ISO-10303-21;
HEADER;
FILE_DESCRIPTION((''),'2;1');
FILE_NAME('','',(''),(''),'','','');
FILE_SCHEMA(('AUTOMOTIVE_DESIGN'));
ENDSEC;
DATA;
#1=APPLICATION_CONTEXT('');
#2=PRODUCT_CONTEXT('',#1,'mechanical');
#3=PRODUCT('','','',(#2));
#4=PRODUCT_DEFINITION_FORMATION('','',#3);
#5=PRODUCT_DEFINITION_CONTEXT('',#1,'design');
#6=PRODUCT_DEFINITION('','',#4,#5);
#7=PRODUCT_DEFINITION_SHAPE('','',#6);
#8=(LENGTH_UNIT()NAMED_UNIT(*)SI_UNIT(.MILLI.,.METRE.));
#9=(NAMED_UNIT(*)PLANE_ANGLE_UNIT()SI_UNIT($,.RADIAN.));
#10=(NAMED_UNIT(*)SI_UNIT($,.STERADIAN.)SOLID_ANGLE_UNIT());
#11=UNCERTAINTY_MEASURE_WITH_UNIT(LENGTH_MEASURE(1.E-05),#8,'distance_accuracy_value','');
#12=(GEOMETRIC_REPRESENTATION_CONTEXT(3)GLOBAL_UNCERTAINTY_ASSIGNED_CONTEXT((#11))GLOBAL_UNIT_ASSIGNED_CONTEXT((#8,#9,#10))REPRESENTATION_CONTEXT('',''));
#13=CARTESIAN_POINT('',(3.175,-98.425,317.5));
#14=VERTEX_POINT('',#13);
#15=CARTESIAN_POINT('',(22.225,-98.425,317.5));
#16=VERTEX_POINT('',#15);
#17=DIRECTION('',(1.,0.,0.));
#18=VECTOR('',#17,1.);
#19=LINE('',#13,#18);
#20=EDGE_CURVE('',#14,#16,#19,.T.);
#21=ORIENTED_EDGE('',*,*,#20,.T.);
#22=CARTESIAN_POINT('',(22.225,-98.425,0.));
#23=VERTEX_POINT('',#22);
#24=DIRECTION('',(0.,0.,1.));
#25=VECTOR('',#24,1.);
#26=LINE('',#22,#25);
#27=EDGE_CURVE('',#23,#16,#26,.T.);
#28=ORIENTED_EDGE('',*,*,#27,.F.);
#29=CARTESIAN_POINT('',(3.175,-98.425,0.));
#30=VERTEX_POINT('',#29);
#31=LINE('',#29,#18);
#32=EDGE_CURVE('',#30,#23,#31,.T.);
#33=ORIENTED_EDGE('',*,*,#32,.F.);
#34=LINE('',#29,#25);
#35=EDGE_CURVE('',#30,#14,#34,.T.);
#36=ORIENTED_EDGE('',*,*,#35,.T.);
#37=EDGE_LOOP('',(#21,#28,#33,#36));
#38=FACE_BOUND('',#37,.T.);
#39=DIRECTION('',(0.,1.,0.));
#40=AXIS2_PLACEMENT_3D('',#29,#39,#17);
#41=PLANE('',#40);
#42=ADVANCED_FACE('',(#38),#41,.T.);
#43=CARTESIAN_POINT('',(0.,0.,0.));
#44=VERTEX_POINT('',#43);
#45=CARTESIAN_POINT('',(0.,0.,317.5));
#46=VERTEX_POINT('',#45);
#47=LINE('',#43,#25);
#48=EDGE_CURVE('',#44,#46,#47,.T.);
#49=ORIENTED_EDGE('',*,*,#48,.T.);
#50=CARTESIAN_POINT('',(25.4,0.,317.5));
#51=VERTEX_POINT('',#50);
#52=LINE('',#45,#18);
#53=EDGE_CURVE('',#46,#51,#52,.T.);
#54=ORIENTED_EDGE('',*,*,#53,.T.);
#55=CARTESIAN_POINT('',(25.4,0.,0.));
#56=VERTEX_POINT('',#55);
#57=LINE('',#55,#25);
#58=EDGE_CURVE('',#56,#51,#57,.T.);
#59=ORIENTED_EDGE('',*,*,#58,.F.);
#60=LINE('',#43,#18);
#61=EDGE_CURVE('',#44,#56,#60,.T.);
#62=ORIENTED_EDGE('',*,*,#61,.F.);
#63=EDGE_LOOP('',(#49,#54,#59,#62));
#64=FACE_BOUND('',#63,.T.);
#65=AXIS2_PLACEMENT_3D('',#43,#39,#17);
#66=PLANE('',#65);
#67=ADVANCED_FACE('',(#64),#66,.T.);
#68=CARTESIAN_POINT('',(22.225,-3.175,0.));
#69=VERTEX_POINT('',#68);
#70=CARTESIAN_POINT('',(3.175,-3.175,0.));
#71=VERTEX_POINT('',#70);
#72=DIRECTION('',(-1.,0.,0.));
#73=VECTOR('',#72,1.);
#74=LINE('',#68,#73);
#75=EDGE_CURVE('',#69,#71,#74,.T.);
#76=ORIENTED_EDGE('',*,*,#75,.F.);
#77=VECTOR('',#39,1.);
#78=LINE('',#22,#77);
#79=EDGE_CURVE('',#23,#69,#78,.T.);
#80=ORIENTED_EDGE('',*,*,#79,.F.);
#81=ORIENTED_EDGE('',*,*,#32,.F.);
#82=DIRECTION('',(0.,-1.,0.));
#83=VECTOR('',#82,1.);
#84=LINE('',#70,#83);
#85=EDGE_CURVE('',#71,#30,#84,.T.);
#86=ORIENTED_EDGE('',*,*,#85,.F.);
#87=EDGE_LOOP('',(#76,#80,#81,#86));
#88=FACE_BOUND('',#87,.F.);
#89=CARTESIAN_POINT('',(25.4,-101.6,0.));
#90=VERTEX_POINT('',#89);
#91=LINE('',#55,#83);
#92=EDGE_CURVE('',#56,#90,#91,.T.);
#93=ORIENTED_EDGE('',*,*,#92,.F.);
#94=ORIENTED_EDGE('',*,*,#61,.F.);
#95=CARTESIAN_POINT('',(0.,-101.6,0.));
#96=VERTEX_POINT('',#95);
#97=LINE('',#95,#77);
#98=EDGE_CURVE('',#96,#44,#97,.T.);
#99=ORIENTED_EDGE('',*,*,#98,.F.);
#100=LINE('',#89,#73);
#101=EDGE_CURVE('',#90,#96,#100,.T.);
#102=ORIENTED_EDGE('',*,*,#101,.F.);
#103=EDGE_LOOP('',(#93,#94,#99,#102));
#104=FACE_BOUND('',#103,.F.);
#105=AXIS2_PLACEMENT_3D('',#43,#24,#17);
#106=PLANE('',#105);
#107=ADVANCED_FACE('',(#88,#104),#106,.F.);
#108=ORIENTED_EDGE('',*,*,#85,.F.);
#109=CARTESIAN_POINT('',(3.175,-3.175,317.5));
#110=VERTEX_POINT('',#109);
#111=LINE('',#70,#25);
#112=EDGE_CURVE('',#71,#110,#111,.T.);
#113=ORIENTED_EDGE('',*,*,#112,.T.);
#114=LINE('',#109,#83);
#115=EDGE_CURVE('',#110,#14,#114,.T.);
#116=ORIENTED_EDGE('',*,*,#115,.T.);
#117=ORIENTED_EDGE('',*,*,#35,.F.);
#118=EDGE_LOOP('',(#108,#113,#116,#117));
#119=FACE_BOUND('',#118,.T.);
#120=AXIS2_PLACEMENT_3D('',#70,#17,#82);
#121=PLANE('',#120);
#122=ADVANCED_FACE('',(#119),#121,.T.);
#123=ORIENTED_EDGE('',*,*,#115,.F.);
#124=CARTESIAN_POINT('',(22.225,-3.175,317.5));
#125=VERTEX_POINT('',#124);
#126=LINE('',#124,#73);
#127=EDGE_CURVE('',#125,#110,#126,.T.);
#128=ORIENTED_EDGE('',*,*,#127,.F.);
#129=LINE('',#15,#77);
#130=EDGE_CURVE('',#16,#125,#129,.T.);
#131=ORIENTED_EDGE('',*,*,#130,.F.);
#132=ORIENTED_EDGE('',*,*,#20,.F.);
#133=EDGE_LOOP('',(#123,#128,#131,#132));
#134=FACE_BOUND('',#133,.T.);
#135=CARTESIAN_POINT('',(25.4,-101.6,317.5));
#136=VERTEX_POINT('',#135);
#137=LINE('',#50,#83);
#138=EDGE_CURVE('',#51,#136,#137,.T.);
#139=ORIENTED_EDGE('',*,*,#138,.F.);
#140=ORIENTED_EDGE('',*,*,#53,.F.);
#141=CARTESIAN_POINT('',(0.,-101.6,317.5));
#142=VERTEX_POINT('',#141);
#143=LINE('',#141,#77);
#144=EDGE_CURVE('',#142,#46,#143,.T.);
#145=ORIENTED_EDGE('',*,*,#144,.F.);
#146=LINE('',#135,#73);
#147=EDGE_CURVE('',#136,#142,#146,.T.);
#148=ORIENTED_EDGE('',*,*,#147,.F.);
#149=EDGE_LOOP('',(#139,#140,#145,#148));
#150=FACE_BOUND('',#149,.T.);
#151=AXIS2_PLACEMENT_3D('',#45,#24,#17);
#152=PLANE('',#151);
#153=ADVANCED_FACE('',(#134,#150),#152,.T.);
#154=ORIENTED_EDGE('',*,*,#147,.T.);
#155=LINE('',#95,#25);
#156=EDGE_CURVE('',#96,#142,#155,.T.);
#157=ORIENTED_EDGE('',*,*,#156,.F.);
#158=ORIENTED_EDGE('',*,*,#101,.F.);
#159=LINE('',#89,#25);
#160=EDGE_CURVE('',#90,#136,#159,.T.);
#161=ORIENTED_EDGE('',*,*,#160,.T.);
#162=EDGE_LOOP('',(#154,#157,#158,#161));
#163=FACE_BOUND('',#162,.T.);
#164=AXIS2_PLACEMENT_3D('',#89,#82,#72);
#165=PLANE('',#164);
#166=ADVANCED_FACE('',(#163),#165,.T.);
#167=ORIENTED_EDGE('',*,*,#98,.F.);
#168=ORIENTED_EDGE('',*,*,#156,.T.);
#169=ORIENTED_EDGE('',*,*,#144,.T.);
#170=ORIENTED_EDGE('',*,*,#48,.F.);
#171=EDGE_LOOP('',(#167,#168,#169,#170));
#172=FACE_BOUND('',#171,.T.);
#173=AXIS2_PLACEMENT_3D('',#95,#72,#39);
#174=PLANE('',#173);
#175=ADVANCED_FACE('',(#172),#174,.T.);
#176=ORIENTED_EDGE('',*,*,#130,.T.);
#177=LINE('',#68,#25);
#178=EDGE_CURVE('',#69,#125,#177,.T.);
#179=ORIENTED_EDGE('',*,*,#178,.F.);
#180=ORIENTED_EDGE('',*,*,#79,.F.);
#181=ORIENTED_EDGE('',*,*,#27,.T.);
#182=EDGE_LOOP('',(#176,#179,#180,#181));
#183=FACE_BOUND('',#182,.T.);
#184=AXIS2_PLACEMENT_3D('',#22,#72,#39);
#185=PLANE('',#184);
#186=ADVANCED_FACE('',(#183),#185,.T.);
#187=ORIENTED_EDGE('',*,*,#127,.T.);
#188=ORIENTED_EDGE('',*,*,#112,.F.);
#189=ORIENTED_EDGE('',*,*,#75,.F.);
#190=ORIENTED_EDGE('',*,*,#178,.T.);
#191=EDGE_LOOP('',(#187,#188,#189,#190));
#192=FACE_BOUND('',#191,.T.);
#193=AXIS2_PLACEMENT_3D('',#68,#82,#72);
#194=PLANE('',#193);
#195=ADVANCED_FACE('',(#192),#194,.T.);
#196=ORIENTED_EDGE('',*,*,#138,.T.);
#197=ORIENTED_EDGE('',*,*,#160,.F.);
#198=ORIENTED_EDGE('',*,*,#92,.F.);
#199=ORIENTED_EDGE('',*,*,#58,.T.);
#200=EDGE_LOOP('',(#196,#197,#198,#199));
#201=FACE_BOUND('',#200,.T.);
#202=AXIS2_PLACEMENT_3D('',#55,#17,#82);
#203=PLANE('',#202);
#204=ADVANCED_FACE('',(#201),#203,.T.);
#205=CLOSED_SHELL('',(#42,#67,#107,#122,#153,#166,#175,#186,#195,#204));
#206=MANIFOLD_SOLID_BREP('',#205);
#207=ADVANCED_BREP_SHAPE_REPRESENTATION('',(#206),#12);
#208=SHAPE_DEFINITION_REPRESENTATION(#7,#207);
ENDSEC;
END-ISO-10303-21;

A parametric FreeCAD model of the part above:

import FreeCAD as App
import Part
import Sketcher
from FreeCAD import Vector
Q = App.Units.Quantity

doc = App.newDocument("Part")
body = doc.addObject("PartDesign::Body", "Body")

sketch1 = doc.addObject("Sketcher::SketchObject", "Sketch")
body.addObject(sketch1)
sketch1.AttachmentSupport = (doc.XY_Plane, [""])
sketch1.MapMode = "FlatFace"
sketch1.addGeometry([
    Part.LineSegment(Vector(25.4, 0, 0), Vector(0, 0, 0)),
    Part.LineSegment(Vector(0, 0, 0), Vector(0, -101.6, 0)),
    Part.LineSegment(Vector(0, -101.6, 0), Vector(25.4, -101.6, 0)),
    Part.LineSegment(Vector(25.4, -101.6, 0), Vector(25.4, 0, 0)),
    Part.LineSegment(Vector(3.175, -3.175, 0), Vector(22.225, -3.175, 0)),
    Part.LineSegment(Vector(22.225, -3.175, 0), Vector(22.225, -98.425, 0)),
    Part.LineSegment(Vector(22.225, -98.425, 0), Vector(3.175, -98.425, 0)),
    Part.LineSegment(Vector(3.175, -98.425, 0), Vector(3.175, -3.175, 0)),
], False)
sketch1.addConstraint([
    Sketcher.Constraint("Coincident", 0, 2, 1, 1),
    Sketcher.Constraint("Coincident", 1, 2, 2, 1),
    Sketcher.Constraint("Coincident", 2, 2, 3, 1),
    Sketcher.Constraint("Coincident", 3, 2, 0, 1),
    Sketcher.Constraint("Coincident", 4, 2, 5, 1),
    Sketcher.Constraint("Coincident", 5, 2, 6, 1),
    Sketcher.Constraint("Coincident", 6, 2, 7, 1),
    Sketcher.Constraint("Coincident", 7, 2, 4, 1),
    Sketcher.Constraint("Horizontal", 0),
    Sketcher.Constraint("Vertical", 1),
    Sketcher.Constraint("Horizontal", 2),
    Sketcher.Constraint("Vertical", 3),
    Sketcher.Constraint("Horizontal", 4),
    Sketcher.Constraint("Vertical", 5),
    Sketcher.Constraint("Horizontal", 6),
    Sketcher.Constraint("Vertical", 7),
    Sketcher.Constraint("Coincident", 0, 2, -1, 1),
    Sketcher.Constraint("DistanceX", 0, 2, 0, 1, Q("1 in")),
    Sketcher.Constraint("DistanceY", 1, 2, 1, 1, Q("4 in")),
    Sketcher.Constraint("DistanceY", 4, 2, -1, 1, Q("0.125 in")),
    Sketcher.Constraint("DistanceX", -1, 1, 6, 2, Q("0.125 in")),
    Sketcher.Constraint("DistanceX", 4, 2, 3, 2, Q("0.125 in")),
    Sketcher.Constraint("DistanceY", 2, 2, 5, 2, Q("0.125 in")),
])
pad1 = doc.addObject("PartDesign::Pad", "Pad")
body.addObject(pad1)
pad1.Profile = sketch1
pad1.Length = Q("12.5 in")

doc.recompute()
